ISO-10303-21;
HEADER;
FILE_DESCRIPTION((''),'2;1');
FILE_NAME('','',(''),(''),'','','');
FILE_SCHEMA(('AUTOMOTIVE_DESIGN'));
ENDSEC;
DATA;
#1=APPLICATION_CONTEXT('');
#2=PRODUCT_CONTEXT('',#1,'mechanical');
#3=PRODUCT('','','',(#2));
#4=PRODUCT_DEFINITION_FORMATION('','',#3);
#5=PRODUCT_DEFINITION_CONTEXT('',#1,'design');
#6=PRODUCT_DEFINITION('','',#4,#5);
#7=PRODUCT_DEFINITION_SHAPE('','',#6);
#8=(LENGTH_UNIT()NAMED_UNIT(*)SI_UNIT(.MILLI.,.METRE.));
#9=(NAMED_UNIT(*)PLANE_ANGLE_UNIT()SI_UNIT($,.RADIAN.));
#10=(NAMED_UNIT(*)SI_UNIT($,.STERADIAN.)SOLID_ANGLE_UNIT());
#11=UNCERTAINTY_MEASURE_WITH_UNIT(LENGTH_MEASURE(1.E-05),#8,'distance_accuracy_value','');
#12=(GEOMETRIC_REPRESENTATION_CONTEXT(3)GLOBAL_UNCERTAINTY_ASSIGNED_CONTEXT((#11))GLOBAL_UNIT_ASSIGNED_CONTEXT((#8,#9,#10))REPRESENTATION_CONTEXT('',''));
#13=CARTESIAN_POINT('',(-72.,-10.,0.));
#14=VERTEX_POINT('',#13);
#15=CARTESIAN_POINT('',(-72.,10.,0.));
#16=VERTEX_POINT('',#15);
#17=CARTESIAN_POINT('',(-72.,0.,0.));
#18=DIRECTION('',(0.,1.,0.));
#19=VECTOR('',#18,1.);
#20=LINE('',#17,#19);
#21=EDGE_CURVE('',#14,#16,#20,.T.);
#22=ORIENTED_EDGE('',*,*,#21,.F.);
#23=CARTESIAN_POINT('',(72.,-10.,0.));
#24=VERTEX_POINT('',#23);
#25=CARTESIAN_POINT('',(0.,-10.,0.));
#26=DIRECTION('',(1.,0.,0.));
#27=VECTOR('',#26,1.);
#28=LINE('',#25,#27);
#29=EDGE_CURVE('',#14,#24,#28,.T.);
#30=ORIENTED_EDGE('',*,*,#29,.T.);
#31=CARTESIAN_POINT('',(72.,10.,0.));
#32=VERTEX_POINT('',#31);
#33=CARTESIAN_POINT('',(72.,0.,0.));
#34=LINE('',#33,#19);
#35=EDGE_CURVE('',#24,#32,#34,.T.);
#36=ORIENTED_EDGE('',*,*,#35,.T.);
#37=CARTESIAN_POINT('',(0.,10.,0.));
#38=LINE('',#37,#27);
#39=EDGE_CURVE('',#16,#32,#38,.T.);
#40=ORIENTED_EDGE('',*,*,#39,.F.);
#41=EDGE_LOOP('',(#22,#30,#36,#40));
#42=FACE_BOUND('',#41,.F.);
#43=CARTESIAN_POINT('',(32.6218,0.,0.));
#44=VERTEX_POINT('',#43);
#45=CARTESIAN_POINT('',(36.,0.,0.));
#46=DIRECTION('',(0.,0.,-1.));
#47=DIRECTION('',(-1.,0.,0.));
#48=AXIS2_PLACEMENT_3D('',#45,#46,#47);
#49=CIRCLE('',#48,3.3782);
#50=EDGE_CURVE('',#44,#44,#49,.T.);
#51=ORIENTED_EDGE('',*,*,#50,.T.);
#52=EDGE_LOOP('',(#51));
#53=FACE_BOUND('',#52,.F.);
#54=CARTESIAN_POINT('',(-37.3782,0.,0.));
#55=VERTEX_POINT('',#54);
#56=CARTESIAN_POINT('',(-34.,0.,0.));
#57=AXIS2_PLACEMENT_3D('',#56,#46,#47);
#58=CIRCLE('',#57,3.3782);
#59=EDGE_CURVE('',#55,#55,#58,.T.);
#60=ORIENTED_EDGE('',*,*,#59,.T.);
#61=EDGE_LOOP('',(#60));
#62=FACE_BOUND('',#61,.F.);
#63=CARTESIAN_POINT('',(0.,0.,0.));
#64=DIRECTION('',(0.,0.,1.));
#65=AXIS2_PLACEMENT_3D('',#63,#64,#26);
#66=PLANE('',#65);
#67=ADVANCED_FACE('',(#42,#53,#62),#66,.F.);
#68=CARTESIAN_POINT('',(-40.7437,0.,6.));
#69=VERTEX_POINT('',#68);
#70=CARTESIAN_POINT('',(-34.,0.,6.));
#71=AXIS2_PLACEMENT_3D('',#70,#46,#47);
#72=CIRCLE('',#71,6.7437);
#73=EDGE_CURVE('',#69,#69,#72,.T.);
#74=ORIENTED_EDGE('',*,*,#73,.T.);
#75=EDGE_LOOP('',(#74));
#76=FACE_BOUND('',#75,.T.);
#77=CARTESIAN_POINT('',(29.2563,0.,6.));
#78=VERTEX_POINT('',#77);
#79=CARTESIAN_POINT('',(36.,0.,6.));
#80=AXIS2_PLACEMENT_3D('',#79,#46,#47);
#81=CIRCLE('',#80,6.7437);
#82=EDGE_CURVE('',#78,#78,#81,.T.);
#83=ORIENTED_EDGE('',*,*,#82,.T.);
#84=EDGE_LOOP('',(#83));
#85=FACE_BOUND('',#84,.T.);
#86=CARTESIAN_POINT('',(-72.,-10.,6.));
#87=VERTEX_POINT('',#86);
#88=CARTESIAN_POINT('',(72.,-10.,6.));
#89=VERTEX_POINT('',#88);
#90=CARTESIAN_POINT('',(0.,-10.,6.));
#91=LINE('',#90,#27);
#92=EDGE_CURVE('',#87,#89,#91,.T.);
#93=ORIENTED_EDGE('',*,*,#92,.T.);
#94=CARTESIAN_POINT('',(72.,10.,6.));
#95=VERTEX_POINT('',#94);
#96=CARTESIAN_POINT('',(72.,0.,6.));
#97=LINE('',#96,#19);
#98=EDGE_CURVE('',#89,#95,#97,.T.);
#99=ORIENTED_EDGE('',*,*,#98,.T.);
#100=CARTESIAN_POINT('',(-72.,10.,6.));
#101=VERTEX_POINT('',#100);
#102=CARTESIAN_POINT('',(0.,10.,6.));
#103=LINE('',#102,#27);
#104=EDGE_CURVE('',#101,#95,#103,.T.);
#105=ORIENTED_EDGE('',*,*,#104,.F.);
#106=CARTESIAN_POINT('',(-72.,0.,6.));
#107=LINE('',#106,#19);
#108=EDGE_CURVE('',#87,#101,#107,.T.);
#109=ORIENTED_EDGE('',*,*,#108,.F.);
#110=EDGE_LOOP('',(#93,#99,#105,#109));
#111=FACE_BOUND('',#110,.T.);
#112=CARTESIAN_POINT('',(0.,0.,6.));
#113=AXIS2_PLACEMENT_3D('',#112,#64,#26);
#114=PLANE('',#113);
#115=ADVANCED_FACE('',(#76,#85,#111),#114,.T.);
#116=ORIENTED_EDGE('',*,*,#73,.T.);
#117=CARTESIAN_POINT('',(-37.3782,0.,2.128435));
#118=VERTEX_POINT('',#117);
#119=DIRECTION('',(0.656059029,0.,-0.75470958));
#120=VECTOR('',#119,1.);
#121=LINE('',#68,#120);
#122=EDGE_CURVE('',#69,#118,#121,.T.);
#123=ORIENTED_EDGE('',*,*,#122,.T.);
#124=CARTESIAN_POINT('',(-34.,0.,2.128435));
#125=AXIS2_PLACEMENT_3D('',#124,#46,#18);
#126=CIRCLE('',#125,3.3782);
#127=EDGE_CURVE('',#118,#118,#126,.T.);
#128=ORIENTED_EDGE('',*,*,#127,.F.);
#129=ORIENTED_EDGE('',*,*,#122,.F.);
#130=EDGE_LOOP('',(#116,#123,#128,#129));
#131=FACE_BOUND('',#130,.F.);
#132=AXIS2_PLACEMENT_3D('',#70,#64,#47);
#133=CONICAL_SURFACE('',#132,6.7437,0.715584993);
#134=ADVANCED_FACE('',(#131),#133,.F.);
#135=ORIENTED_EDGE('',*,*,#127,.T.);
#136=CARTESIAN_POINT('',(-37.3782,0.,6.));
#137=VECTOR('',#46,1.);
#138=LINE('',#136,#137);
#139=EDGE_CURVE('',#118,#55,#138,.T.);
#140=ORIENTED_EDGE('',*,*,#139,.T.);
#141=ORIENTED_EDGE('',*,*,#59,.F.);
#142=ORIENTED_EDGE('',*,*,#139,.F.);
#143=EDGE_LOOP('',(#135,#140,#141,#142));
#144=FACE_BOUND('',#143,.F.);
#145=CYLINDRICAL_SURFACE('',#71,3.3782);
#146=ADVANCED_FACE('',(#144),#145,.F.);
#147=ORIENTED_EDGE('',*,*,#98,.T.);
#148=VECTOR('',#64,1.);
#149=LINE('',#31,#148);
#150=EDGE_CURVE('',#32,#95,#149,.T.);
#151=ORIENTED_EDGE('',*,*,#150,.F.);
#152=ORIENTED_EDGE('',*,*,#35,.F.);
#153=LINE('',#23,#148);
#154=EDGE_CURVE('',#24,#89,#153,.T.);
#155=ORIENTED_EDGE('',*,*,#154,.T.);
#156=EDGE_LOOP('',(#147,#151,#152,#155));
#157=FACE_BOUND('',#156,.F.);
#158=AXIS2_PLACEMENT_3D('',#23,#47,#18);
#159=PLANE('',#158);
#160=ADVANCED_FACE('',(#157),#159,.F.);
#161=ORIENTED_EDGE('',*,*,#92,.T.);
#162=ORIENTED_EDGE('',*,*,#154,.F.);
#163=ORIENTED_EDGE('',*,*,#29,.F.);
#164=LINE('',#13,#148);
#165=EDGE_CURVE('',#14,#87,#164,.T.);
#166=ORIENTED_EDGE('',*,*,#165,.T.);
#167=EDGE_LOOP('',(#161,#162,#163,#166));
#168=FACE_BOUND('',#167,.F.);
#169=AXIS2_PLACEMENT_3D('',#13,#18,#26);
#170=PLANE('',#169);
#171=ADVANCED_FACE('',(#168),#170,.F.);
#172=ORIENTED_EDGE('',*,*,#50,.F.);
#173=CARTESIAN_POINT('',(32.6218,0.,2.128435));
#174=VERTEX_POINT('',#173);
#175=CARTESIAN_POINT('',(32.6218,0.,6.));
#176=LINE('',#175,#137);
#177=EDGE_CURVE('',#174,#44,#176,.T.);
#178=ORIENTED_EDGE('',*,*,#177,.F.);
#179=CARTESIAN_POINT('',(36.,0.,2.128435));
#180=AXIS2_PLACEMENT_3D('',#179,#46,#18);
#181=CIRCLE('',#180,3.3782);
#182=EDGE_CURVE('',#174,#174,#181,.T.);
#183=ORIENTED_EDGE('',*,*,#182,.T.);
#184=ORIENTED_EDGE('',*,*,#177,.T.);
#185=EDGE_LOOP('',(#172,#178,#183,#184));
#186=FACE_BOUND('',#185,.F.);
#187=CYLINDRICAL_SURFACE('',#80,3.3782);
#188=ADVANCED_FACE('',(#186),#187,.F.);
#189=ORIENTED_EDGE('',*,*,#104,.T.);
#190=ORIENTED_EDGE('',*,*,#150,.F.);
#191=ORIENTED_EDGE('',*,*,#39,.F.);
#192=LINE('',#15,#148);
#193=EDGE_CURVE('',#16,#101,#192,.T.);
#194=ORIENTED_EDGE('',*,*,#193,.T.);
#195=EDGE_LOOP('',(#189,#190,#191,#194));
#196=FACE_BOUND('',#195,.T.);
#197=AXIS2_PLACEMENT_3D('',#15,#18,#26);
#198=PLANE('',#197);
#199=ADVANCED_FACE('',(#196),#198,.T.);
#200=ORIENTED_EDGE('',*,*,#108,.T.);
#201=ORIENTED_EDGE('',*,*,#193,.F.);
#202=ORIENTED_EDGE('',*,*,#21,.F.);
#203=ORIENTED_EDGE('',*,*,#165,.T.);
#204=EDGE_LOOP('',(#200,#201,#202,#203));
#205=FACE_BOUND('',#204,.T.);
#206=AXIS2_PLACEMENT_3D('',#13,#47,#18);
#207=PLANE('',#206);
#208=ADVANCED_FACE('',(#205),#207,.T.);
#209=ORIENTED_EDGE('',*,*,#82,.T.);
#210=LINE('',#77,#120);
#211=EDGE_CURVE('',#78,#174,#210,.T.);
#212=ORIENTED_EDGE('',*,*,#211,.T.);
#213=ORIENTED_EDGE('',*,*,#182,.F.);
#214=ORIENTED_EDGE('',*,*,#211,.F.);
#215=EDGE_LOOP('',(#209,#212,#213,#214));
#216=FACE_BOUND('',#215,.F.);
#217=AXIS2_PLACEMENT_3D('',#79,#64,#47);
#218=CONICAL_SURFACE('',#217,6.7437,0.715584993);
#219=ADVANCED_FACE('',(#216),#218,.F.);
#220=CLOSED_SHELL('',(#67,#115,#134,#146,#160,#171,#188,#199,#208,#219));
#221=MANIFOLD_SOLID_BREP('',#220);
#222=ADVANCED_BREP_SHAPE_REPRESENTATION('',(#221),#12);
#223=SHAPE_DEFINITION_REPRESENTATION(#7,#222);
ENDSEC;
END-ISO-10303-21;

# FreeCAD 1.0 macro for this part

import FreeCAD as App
import Part
import Sketcher
from FreeCAD import Vector
Q = App.Units.Quantity

doc = App.newDocument("Part")
body = doc.addObject("PartDesign::Body", "Body")

sketch1 = body.newObject("Sketcher::SketchObject", "Sketch")
sketch1.AttachmentSupport = (doc.getObject("XY_Plane"), [""])
sketch1.MapMode = "FlatFace"
sketch1.addGeometry(Part.LineSegment(Vector(-72, 10, 0), Vector(-72, -10, 0)), False)
sketch1.addGeometry(Part.LineSegment(Vector(-72, -10, 0), Vector(72, -10, 0)), False)
sketch1.addGeometry(Part.LineSegment(Vector(72, -10, 0), Vector(72, 10, 0)), False)
sketch1.addGeometry(Part.LineSegment(Vector(72, 10, 0), Vector(-72, 10, 0)), False)
sketch1.addConstraint(Sketcher.Constraint("Coincident", 0, 2, 1, 1))
sketch1.addConstraint(Sketcher.Constraint("Coincident", 1, 2, 2, 1))
sketch1.addConstraint(Sketcher.Constraint("Coincident", 2, 2, 3, 1))
sketch1.addConstraint(Sketcher.Constraint("Coincident", 3, 2, 0, 1))
sketch1.addConstraint(Sketcher.Constraint("Vertical", 0))
sketch1.addConstraint(Sketcher.Constraint("Horizontal", 1))
sketch1.addConstraint(Sketcher.Constraint("Vertical", 2))
sketch1.addConstraint(Sketcher.Constraint("Horizontal", 3))
sketch1.addConstraint(Sketcher.Constraint("Symmetric", 0, 2, 2, 2, -1, 1))
sketch1.addConstraint(Sketcher.Constraint("DistanceX", 1, 1, 1, 2, Q("144 mm")))
sketch1.addConstraint(Sketcher.Constraint("DistanceY", 0, 2, 0, 1, Q("20 mm")))
pad1 = body.newObject("PartDesign::Pad", "Pad")
pad1.Profile = sketch1
pad1.Length = 6

sketch2 = body.newObject("Sketcher::SketchObject", "Sketch001")
sketch2.AttachmentSupport = (doc.getObject("XY_Plane"), [""])
sketch2.MapMode = "FlatFace"
sketch2.AttachmentOffset = App.Placement(Vector(0, 0, 6), App.Rotation())
sketch2.addGeometry(Part.Circle(Vector(-34, 0, 0), Vector(0, 0, 1), 3.4), False)
sketch2.addGeometry(Part.Circle(Vector(36, 0, 0), Vector(0, 0, 1), 3.4), False)
sketch2.addConstraint(Sketcher.Constraint("Equal", 0, 1))
sketch2.addConstraint(Sketcher.Constraint("PointOnObject", 0, 3, -1))
sketch2.addConstraint(Sketcher.Constraint("PointOnObject", 1, 3, -1))
sketch2.addConstraint(Sketcher.Constraint("DistanceX", 0, 3, -1, 1, Q("34 mm")))
sketch2.addConstraint(Sketcher.Constraint("DistanceX", -1, 1, 1, 3, Q("36 mm")))
sketch2.addConstraint(Sketcher.Constraint("Diameter", 0, Q("6.7564 mm")))
doc.recompute()
hole = body.newObject("PartDesign::Hole", "Hole")
hole.Profile = sketch2
hole.ThreadType = "None"
hole.Diameter = 6.7564
hole.DepthType = "Dimension"
hole.Depth = 16.51
hole.DrillPoint = "Flat"
hole.HoleCutType = "Countersink"
hole.HoleCutDiameter = 13.4874
hole.HoleCutCountersinkAngle = 82

doc.recompute()
